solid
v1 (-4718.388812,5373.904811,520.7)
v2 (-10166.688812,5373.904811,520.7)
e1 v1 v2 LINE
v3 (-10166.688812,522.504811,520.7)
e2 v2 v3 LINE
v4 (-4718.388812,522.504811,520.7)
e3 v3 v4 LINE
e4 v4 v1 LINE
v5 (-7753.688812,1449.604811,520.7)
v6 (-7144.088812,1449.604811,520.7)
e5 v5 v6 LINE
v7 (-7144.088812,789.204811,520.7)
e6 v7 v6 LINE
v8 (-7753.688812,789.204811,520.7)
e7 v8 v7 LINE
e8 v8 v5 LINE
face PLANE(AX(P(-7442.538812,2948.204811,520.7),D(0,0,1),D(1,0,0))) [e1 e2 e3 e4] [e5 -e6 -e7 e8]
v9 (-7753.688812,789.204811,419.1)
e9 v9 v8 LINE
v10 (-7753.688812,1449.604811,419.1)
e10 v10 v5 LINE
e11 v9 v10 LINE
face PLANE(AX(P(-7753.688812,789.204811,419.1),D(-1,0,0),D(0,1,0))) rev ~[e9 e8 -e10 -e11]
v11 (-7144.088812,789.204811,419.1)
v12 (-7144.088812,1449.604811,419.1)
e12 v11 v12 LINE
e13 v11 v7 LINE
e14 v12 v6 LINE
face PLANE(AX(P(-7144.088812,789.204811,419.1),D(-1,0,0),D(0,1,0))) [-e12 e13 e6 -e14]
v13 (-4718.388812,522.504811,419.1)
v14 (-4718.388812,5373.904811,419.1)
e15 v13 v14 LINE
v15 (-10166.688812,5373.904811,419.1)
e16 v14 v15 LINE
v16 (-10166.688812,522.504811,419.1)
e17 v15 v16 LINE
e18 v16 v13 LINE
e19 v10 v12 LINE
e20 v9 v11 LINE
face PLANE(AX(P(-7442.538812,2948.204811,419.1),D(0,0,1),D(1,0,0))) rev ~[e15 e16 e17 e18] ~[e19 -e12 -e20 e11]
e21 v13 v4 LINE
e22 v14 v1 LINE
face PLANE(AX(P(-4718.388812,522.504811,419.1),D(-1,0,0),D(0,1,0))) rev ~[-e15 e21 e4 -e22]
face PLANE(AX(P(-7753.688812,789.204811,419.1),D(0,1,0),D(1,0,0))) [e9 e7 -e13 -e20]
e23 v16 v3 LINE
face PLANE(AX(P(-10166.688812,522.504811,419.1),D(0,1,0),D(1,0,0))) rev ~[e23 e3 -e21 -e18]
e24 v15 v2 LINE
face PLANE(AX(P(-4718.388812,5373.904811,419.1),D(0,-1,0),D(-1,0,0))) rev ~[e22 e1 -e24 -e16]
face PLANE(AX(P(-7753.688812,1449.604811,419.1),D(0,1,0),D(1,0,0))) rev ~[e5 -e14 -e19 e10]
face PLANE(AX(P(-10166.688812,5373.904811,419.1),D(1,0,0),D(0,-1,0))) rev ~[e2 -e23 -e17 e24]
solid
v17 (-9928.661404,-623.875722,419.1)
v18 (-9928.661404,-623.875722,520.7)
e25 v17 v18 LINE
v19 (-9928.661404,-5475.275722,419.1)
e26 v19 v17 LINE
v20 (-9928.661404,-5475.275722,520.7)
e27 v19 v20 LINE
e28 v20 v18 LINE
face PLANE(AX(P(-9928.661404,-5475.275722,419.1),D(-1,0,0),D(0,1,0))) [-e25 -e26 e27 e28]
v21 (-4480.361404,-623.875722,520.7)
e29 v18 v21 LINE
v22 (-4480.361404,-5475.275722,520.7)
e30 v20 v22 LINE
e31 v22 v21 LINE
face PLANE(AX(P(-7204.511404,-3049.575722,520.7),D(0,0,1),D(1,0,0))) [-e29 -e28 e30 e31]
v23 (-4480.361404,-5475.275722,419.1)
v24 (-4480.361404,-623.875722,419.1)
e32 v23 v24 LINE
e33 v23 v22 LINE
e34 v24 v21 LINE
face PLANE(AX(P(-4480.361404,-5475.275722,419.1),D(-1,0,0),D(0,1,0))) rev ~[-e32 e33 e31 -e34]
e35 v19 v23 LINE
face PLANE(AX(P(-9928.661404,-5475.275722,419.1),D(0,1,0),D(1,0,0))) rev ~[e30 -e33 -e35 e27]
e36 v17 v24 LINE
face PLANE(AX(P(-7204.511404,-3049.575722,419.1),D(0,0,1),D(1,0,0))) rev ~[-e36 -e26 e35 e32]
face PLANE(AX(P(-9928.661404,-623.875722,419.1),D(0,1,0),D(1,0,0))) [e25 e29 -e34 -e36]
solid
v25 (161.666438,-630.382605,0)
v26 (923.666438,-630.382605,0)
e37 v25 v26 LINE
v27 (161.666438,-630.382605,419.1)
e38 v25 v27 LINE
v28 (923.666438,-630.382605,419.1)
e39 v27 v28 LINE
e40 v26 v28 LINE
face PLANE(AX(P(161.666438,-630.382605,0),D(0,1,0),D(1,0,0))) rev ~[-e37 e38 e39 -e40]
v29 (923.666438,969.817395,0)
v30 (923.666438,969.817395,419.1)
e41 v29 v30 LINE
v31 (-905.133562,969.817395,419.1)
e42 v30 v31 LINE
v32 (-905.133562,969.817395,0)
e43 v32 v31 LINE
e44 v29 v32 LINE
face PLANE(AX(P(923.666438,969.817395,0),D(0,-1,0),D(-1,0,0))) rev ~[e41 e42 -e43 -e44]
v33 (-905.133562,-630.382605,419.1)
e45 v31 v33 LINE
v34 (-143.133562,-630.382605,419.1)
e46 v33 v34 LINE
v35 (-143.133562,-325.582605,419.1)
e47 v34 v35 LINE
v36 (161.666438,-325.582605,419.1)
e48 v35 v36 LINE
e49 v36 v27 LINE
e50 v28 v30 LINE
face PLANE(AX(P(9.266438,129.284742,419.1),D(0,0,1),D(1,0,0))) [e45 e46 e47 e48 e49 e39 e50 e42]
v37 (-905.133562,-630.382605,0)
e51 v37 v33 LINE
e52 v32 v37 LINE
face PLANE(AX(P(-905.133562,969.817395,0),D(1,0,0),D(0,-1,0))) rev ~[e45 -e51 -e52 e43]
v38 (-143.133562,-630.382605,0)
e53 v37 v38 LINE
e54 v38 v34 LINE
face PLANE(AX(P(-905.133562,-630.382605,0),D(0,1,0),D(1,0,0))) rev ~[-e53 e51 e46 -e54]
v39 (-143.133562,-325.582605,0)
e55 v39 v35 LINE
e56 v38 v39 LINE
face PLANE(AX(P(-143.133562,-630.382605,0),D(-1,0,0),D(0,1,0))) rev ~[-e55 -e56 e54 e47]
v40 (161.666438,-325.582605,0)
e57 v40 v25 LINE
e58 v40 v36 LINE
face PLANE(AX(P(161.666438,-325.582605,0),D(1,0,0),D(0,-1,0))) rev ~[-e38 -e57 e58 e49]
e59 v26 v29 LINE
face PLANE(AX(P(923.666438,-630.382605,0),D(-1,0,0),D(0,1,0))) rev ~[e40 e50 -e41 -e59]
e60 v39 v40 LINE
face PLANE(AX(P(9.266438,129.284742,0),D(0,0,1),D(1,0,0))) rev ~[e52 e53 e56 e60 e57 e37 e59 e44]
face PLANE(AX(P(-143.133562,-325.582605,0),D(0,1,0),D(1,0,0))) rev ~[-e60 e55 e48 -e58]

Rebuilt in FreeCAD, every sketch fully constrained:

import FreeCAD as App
import Part
import Sketcher
Q = App.Units.Quantity

doc = App.newDocument("Part")
body = doc.addObject("PartDesign::Body", "Body")

# Sketch on XY plane
sketch1 = body.newObject("Sketcher::SketchObject", "Sketch")
sketch1.AttachmentSupport = (doc.getObject("XY_Plane"), [""])
sketch1.MapMode = "FlatFace"
sketch1.addGeometry(Part.LineSegment(App.Vector(923.666438, 969.817395, 0), App.Vector(-905.133562, 969.817395, 0)), False)
sketch1.addGeometry(Part.LineSegment(App.Vector(-905.133562, 969.817395, 0), App.Vector(-905.133562, -630.382605, 0)), False)
sketch1.addGeometry(Part.LineSegment(App.Vector(-905.133562, -630.382605, 0), App.Vector(-143.133562, -630.382605, 0)), False)
sketch1.addGeometry(Part.LineSegment(App.Vector(-143.133562, -630.382605, 0), App.Vector(-143.133562, -325.582605, 0)), False)
sketch1.addGeometry(Part.LineSegment(App.Vector(-143.133562, -325.582605, 0), App.Vector(161.666438, -325.582605, 0)), False)
sketch1.addGeometry(Part.LineSegment(App.Vector(161.666438, -325.582605, 0), App.Vector(161.666438, -630.382605, 0)), False)
sketch1.addGeometry(Part.LineSegment(App.Vector(161.666438, -630.382605, 0), App.Vector(923.666438, -630.382605, 0)), False)
sketch1.addGeometry(Part.LineSegment(App.Vector(923.666438, -630.382605, 0), App.Vector(923.666438, 969.817395, 0)), False)
sketch1.addConstraint(Sketcher.Constraint("Coincident", 0, 2, 1, 1))
sketch1.addConstraint(Sketcher.Constraint("Coincident", 1, 2, 2, 1))
sketch1.addConstraint(Sketcher.Constraint("Coincident", 2, 2, 3, 1))
sketch1.addConstraint(Sketcher.Constraint("Coincident", 3, 2, 4, 1))
sketch1.addConstraint(Sketcher.Constraint("Coincident", 4, 2, 5, 1))
sketch1.addConstraint(Sketcher.Constraint("Coincident", 5, 2, 6, 1))
sketch1.addConstraint(Sketcher.Constraint("Coincident", 6, 2, 7, 1))
sketch1.addConstraint(Sketcher.Constraint("Coincident", 7, 2, 0, 1))
sketch1.addConstraint(Sketcher.Constraint("Horizontal", 0))
sketch1.addConstraint(Sketcher.Constraint("Vertical", 1))
sketch1.addConstraint(Sketcher.Constraint("Horizontal", 2))
sketch1.addConstraint(Sketcher.Constraint("Vertical", 3))
sketch1.addConstraint(Sketcher.Constraint("Horizontal", 4))
sketch1.addConstraint(Sketcher.Constraint("Vertical", 5))
sketch1.addConstraint(Sketcher.Constraint("Horizontal", 6))
sketch1.addConstraint(Sketcher.Constraint("Vertical", 7))
sketch1.addConstraint(Sketcher.Constraint("Horizontal", 2, 2, 5, 2))
sketch1.addConstraint(Sketcher.Constraint("Equal", 2, 6))
sketch1.addConstraint(Sketcher.Constraint("Equal", 4, 3))
sketch1.addConstraint(Sketcher.Constraint("DistanceX", 0, 2, 0, 1, Q("72 in")))
sketch1.addConstraint(Sketcher.Constraint("DistanceX", 2, 1, 2, 2, Q("30 in")))
sketch1.addConstraint(Sketcher.Constraint("DistanceY", 1, 2, 1, 1, Q("63 in")))
sketch1.addConstraint(Sketcher.Constraint("DistanceX", 0, 2, -1, 1, 905.133562))
sketch1.addConstraint(Sketcher.Constraint("DistanceY", -1, 1, 0, 2, 969.817395))
pad1 = body.newObject("PartDesign::Pad", "Pad")
pad1.Profile = sketch1
pad1.Length = Q("16.5 in")
body2 = doc.addObject("PartDesign::Body", "Body001")

# Sketch on XY plane
sketch2 = body2.newObject("Sketcher::SketchObject", "Sketch001")
sketch2.AttachmentSupport = (doc.getObject("XY_Plane001"), [""])
sketch2.MapMode = "FlatFace"
sketch2.AttachmentOffset = App.Placement(App.Vector(0, 0, 16.5 * 25.4), App.Rotation())
sketch2.addGeometry(Part.LineSegment(App.Vector(-4718.388812, 522.504811, 0), App.Vector(-4718.388812, 5373.904811, 0)), False)
sketch2.addGeometry(Part.LineSegment(App.Vector(-4718.388812, 5373.904811, 0), App.Vector(-10166.688812, 5373.904811, 0)), False)
sketch2.addGeometry(Part.LineSegment(App.Vector(-10166.688812, 5373.904811, 0), App.Vector(-10166.688812, 522.504811, 0)), False)
sketch2.addGeometry(Part.LineSegment(App.Vector(-10166.688812, 522.504811, 0), App.Vector(-4718.388812, 522.504811, 0)), False)
sketch2.addGeometry(Part.LineSegment(App.Vector(-7144.088812, 789.204811, 0), App.Vector(-7753.688812, 789.204811, 0)), False)
sketch2.addGeometry(Part.LineSegment(App.Vector(-7753.688812, 789.204811, 0), App.Vector(-7753.688812, 1449.604811, 0)), False)
sketch2.addGeometry(Part.LineSegment(App.Vector(-7753.688812, 1449.604811, 0), App.Vector(-7144.088812, 1449.604811, 0)), False)
sketch2.addGeometry(Part.LineSegment(App.Vector(-7144.088812, 1449.604811, 0), App.Vector(-7144.088812, 789.204811, 0)), False)
sketch2.addConstraint(Sketcher.Constraint("Coincident", 0, 2, 1, 1))
sketch2.addConstraint(Sketcher.Constraint("Coincident", 1, 2, 2, 1))
sketch2.addConstraint(Sketcher.Constraint("Coincident", 2, 2, 3, 1))
sketch2.addConstraint(Sketcher.Constraint("Coincident", 3, 2, 0, 1))
sketch2.addConstraint(Sketcher.Constraint("Coincident", 4, 2, 5, 1))
sketch2.addConstraint(Sketcher.Constraint("Coincident", 5, 2, 6, 1))
sketch2.addConstraint(Sketcher.Constraint("Coincident", 6, 2, 7, 1))
sketch2.addConstraint(Sketcher.Constraint("Coincident", 7, 2, 4, 1))
sketch2.addConstraint(Sketcher.Constraint("Vertical", 0))
sketch2.addConstraint(Sketcher.Constraint("Horizontal", 1))
sketch2.addConstraint(Sketcher.Constraint("Vertical", 2))
sketch2.addConstraint(Sketcher.Constraint("Horizontal", 3))
sketch2.addConstraint(Sketcher.Constraint("Horizontal", 4))
sketch2.addConstraint(Sketcher.Constraint("Vertical", 5))
sketch2.addConstraint(Sketcher.Constraint("Horizontal", 6))
sketch2.addConstraint(Sketcher.Constraint("Vertical", 7))
sketch2.addConstraint(Sketcher.Constraint("DistanceX", 4, 2, 4, 1, Q("24 in")))
sketch2.addConstraint(Sketcher.Constraint("DistanceY", 0, 1, 0, 2, Q("191 in")))
sketch2.addConstraint(Sketcher.Constraint("DistanceY", 5, 1, 5, 2, Q("26 in")))
sketch2.addConstraint(Sketcher.Constraint("DistanceX", 1, 2, 1, 1, Q("214.5 in")))
sketch2.addConstraint(Sketcher.Constraint("DistanceX", 2, 2, 4, 2, Q("95 in")))
sketch2.addConstraint(Sketcher.Constraint("DistanceY", 2, 2, 4, 2, Q("10.5 in")))
sketch2.addConstraint(Sketcher.Constraint("DistanceX", 0, 2, -1, 1, 4718.388812))
sketch2.addConstraint(Sketcher.Constraint("DistanceY", -1, 1, 0, 2, 5373.904811))
pad2 = body2.newObject("PartDesign::Pad", "Pad001")
pad2.Profile = sketch2
pad2.Length = Q("4 in")
body3 = doc.addObject("PartDesign::Body", "Body002")

# Sketch on XY plane
sketch3 = body3.newObject("Sketcher::SketchObject", "Sketch002")
sketch3.AttachmentSupport = (doc.getObject("XY_Plane002"), [""])
sketch3.MapMode = "FlatFace"
sketch3.AttachmentOffset = App.Placement(App.Vector(0, 0, 16.5 * 25.4), App.Rotation())
sketch3.addGeometry(Part.LineSegment(App.Vector(-9928.661404, -623.875722, 0), App.Vector(-9928.661404, -5475.275722, 0)), False)
sketch3.addGeometry(Part.LineSegment(App.Vector(-9928.661404, -5475.275722, 0), App.Vector(-4480.361404, -5475.275722, 0)), False)
sketch3.addGeometry(Part.LineSegment(App.Vector(-4480.361404, -5475.275722, 0), App.Vector(-4480.361404, -623.875722, 0)), False)
sketch3.addGeometry(Part.LineSegment(App.Vector(-4480.361404, -623.875722, 0), App.Vector(-9928.661404, -623.875722, 0)), False)
sketch3.addConstraint(Sketcher.Constraint("Coincident", 0, 2, 1, 1))
sketch3.addConstraint(Sketcher.Constraint("Coincident", 1, 2, 2, 1))
sketch3.addConstraint(Sketcher.Constraint("Coincident", 2, 2, 3, 1))
sketch3.addConstraint(Sketcher.Constraint("Coincident", 3, 2, 0, 1))
sketch3.addConstraint(Sketcher.Constraint("Vertical", 0))
sketch3.addConstraint(Sketcher.Constraint("Horizontal", 1))
sketch3.addConstraint(Sketcher.Constraint("Vertical", 2))
sketch3.addConstraint(Sketcher.Constraint("Horizontal", 3))
sketch3.addConstraint(Sketcher.Constraint("DistanceY", 0, 2, 0, 1, Q("191 in")))
sketch3.addConstraint(Sketcher.Constraint("DistanceX", 1, 1, 1, 2, Q("214.5 in")))
sketch3.addConstraint(Sketcher.Constraint("DistanceY", 2, 2, -1, 1, 623.875722))
sketch3.addConstraint(Sketcher.Constraint("DistanceX", 0, 2, -1, 1, 9928.661404))
pad3 = body3.newObject("PartDesign::Pad", "Pad002")
pad3.Profile = sketch3
pad3.Length = Q("4 in")

doc.recompute()
